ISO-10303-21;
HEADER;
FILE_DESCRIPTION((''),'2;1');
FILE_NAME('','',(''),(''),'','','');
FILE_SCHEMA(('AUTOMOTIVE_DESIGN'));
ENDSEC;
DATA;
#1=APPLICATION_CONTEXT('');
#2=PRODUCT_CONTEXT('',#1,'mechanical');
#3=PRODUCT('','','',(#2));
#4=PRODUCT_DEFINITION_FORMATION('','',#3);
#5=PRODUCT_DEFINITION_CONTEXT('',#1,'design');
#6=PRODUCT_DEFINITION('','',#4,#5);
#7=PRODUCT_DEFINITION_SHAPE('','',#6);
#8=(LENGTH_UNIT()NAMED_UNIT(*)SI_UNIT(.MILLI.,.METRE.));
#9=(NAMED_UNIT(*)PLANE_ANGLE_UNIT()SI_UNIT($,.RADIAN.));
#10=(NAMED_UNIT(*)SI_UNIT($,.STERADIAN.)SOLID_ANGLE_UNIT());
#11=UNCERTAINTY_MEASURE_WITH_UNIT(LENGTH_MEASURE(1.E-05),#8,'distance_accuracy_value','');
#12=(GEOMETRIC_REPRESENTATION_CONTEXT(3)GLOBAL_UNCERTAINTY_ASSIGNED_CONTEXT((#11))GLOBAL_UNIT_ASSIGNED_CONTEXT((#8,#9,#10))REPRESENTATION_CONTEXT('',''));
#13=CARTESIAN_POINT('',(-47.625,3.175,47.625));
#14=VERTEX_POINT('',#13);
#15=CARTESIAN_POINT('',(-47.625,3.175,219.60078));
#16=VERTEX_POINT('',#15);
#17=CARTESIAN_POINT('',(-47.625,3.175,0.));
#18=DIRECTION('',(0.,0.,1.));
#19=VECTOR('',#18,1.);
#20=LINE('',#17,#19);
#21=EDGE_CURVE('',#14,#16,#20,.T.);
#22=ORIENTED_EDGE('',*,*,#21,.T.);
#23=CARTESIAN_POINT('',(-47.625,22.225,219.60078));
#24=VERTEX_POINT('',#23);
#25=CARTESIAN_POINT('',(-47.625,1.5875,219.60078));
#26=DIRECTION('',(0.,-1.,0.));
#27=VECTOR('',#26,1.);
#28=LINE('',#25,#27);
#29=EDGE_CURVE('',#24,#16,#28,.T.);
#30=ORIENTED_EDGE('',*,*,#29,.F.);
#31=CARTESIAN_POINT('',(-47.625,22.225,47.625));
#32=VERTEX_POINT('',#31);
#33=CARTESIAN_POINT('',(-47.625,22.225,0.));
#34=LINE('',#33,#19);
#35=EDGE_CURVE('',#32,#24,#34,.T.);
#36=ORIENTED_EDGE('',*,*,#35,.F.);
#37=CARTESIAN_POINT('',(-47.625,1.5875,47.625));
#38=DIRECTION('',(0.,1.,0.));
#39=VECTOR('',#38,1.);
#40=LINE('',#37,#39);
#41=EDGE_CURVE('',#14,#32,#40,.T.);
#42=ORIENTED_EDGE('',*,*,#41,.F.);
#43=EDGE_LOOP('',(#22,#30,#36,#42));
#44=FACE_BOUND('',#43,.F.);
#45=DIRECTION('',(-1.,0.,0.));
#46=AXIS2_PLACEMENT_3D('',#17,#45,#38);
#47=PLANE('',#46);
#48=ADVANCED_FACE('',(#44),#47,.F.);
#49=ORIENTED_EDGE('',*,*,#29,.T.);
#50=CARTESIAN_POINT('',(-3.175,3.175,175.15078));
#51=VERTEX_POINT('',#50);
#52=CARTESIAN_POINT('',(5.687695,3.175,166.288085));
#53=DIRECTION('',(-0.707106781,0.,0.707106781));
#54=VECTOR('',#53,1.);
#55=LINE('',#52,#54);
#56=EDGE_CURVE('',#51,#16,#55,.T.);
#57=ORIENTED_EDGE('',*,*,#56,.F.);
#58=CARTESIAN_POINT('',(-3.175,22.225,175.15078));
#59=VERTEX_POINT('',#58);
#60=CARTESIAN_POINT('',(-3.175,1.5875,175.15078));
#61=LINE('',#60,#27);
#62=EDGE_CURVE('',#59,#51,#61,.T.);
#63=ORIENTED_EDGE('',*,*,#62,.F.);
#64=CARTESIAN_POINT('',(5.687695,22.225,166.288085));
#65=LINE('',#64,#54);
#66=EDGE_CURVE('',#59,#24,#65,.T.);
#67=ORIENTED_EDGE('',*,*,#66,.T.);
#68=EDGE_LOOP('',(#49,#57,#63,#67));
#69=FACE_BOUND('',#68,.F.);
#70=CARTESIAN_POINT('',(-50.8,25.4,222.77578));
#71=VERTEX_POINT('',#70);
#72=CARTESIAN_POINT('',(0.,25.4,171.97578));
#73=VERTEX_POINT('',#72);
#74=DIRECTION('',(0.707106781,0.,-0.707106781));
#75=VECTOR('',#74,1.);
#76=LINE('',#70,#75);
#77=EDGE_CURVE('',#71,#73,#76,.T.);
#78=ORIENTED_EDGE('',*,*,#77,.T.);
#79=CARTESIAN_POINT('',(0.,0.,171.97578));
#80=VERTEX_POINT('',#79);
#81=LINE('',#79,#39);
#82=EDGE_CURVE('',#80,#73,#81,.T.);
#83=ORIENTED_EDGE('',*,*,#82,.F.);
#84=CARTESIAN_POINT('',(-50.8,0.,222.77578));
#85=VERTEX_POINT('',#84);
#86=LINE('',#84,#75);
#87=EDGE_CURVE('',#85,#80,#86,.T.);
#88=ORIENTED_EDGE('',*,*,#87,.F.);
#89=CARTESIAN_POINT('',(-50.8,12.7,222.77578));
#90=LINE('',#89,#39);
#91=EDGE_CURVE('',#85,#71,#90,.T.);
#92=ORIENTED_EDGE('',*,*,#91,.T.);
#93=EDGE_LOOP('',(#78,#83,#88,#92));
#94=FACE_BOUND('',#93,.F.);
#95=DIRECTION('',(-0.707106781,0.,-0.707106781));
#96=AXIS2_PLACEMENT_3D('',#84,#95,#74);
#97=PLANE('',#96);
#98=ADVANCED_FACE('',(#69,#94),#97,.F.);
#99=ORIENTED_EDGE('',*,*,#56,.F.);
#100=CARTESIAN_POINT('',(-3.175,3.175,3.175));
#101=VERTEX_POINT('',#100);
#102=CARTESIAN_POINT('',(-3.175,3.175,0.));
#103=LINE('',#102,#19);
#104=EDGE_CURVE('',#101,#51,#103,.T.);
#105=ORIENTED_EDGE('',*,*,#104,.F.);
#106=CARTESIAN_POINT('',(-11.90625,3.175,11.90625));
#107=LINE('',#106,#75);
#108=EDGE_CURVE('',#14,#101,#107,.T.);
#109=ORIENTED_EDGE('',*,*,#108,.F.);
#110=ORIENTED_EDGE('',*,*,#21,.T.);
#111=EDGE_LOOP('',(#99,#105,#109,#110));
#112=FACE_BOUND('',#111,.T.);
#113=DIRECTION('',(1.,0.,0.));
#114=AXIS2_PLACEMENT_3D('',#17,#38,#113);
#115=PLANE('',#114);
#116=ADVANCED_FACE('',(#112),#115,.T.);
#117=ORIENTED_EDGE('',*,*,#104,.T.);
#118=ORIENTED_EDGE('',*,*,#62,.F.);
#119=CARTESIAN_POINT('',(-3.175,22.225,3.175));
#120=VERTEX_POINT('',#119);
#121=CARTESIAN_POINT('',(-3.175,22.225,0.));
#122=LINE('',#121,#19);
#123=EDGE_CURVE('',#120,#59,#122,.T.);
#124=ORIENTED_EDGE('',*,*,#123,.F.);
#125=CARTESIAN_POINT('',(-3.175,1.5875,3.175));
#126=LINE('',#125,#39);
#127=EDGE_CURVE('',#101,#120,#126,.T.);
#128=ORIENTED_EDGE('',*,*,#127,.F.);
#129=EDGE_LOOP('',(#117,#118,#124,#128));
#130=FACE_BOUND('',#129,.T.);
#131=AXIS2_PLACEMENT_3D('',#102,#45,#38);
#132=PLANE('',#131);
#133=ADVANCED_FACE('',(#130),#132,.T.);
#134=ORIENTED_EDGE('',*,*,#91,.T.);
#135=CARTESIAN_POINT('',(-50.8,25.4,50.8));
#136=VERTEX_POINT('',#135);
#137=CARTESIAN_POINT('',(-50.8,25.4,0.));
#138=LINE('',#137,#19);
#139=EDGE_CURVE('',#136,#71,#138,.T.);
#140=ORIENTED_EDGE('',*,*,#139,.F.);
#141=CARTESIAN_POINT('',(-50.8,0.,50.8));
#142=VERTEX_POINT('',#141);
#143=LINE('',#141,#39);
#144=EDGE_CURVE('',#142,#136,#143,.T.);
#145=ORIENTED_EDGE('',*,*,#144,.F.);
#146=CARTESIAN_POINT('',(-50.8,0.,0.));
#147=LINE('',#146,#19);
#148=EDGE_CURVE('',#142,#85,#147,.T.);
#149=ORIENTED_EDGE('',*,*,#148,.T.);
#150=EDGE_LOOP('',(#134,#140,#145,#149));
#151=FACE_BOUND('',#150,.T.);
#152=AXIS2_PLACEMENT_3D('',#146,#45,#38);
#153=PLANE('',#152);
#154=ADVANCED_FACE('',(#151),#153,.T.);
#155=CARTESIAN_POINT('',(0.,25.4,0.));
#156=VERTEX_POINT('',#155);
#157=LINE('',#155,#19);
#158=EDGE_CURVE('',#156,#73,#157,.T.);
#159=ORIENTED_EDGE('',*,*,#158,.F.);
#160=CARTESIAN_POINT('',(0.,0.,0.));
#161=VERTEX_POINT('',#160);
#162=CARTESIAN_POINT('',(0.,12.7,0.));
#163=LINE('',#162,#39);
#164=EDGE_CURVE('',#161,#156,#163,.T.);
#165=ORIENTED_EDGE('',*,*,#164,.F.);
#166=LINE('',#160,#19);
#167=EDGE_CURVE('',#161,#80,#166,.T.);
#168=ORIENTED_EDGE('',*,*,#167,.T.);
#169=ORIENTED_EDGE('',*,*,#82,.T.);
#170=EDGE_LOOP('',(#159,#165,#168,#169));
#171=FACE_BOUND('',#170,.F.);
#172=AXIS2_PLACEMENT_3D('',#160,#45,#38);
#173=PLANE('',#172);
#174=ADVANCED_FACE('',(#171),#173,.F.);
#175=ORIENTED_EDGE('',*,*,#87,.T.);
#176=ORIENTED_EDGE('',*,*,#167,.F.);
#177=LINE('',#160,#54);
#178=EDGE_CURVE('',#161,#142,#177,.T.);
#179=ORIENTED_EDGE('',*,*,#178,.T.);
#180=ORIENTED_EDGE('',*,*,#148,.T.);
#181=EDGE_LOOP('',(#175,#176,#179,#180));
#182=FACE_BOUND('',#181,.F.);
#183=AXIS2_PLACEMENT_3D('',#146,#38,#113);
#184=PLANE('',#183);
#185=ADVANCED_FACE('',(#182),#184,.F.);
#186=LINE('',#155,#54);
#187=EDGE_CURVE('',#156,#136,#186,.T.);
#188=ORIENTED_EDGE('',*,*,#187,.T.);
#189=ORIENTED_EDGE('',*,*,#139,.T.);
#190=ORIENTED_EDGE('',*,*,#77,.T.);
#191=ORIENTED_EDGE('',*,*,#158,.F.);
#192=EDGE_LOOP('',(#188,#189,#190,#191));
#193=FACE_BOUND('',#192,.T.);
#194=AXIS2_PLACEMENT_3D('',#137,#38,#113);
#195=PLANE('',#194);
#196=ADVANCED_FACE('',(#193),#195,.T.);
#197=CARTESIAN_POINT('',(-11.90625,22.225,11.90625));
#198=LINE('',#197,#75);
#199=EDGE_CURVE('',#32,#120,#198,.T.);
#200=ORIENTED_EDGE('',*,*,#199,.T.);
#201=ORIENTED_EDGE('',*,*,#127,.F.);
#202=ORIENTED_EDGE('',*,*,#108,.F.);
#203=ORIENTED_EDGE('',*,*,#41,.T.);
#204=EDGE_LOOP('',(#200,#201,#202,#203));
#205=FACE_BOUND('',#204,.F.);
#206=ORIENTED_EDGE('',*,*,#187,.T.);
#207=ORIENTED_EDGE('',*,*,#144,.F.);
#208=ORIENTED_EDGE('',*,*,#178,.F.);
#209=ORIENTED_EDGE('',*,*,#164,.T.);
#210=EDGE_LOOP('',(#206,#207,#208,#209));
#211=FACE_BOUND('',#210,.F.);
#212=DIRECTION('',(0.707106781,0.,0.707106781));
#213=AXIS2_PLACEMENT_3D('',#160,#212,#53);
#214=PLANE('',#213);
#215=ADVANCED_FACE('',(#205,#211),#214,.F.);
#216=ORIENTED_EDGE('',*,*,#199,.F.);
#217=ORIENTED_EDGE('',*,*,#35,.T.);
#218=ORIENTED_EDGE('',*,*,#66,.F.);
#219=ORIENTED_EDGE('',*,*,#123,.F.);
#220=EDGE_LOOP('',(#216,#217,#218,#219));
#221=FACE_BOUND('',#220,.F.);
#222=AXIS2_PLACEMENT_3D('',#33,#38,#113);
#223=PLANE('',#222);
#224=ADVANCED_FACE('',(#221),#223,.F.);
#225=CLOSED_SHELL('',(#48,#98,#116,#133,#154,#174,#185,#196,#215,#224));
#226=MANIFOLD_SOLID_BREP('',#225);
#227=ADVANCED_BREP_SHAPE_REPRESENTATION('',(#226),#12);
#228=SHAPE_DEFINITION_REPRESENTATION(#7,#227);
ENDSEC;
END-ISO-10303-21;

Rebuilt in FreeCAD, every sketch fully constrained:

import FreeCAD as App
import Part
import Sketcher
from FreeCAD import Vector
Q = App.Units.Quantity


def add_polygon(sketch, points):
    """Adds a closed chain of lines whose ends are joined by coincident constraints."""
    first, n = sketch.GeometryCount, len(points)
    for a, b in zip(points, points[1:] + points[:1]):
        sketch.addGeometry(Part.LineSegment(App.Vector(*a, 0), App.Vector(*b, 0)), False)
    for i in range(n):
        sketch.addConstraint(Sketcher.Constraint("Coincident", first + i, 2, first + (i + 1) % n, 1))

doc = App.newDocument("Part")
body = doc.addObject("PartDesign::Body", "Body")

# Sketch on XY plane
sketch1 = body.newObject("Sketcher::SketchObject", "Sketch")
sketch1.AttachmentSupport = (doc.getObject("XY_Plane"), [""])
sketch1.MapMode = "FlatFace"
add_polygon(sketch1, [(-50.8, 25.4), (-50.8, 0), (0, 0), (0, 25.4)])  # lines 0-3
add_polygon(sketch1, [(-3.175, 3.175), (-47.625, 3.175), (-47.625, 22.225), (-3.175, 22.225)])  # lines 4-7
sketch1.addConstraint([
    Sketcher.Constraint("Vertical", 0),
    Sketcher.Constraint("Horizontal", 1),
    Sketcher.Constraint("Vertical", 2),
    Sketcher.Constraint("Horizontal", 3),
    Sketcher.Constraint("Horizontal", 4),
    Sketcher.Constraint("Vertical", 5),
    Sketcher.Constraint("Horizontal", 6),
    Sketcher.Constraint("Vertical", 7),
    Sketcher.Constraint("Coincident", 1, 2, -1, 1),
    Sketcher.Constraint("DistanceX", 1, 1, 1, 2, Q("2 in")),
    Sketcher.Constraint("DistanceY", 0, 2, 0, 1, Q("1 in")),
    Sketcher.Constraint("DistanceX", 4, 2, 4, 1, Q("1.75 in")),
    Sketcher.Constraint("DistanceY", 5, 1, 5, 2, Q("0.75 in")),
    Sketcher.Constraint("DistanceX", 4, 2, -1, 1, Q("1.875 in")),
    Sketcher.Constraint("DistanceY", -1, 1, 4, 2, Q("0.125 in")),
])
pad1 = body.newObject("PartDesign::Pad", "Pad")
pad1.Profile = sketch1
pad1.Length = Q("8.7707 in")

# Sketch on XZ plane
sketch2 = body.newObject("Sketcher::SketchObject", "Sketch001")
sketch2.AttachmentSupport = (doc.getObject("XZ_Plane"), [""])
sketch2.MapMode = "FlatFace"
add_polygon(sketch2, [(-50.8, 0), (0, 0), (-50.8, 50.8)])  # lines 0-2
add_polygon(sketch2, [(-50.8, 222.77578), (0, 171.97578), (0, 222.77578)])  # lines 3-5
sketch2.addConstraint([
    Sketcher.Constraint("Horizontal", 0),
    Sketcher.Constraint("Vertical", 2),
    Sketcher.Constraint("Vertical", 4),
    Sketcher.Constraint("Horizontal", 5),
    Sketcher.Constraint("Coincident", 0, 2, -1, 1),
    Sketcher.Constraint("PointOnObject", 3, 2, -2),
    Sketcher.Constraint("Parallel", 1, 3),
    Sketcher.Constraint("Vertical", 2, 2, 5, 2),
    Sketcher.Constraint("Equal", 5, 2),
    Sketcher.Constraint("DistanceX", 0, 1, 0, 2, Q("2 in")),
    Sketcher.Constraint("DistanceY", -1, 1, 3, 2, Q("6.7707 in")),
])
pocket1 = body.newObject("PartDesign::Pocket", "Pocket")
pocket1.Profile = sketch2
pocket1.Length = Q("1 in")

doc.recompute()
